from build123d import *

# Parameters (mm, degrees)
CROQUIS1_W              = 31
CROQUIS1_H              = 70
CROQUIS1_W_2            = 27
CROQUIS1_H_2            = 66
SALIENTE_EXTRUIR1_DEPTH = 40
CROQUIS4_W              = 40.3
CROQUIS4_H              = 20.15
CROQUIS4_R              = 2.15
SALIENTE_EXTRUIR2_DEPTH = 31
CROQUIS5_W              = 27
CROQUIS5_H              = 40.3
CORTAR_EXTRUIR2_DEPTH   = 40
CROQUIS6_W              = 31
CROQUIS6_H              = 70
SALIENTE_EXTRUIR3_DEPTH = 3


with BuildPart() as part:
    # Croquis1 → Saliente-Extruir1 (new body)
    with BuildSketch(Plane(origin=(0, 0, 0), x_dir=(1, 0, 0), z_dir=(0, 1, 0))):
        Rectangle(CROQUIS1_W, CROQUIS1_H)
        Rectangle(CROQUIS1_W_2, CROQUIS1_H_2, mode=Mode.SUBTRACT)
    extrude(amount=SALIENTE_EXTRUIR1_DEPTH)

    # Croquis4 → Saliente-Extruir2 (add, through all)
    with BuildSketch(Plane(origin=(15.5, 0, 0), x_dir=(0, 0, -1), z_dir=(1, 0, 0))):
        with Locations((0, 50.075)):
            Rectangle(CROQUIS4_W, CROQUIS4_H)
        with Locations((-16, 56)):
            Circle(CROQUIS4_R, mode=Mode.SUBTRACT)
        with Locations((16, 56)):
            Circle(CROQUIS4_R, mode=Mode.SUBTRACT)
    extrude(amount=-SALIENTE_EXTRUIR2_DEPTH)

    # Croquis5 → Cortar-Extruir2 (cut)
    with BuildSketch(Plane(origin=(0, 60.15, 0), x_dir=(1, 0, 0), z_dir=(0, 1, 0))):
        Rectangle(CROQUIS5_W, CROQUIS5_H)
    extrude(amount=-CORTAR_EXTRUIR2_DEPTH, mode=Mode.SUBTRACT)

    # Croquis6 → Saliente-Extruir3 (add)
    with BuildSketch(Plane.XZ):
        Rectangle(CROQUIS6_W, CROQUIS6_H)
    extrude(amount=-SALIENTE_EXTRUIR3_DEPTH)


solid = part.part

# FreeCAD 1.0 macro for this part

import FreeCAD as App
import Part
import Sketcher

doc = App.newDocument("Part")
params = doc.addObject("Spreadsheet::Sheet", "Params")
for row, (alias, value) in enumerate([
    ("sketch1_width", "31 mm"),
    ("sketch1_width2", "27 mm"),
    ("sketch1_height", "70 mm"),
    ("sketch1_height2", "66 mm"),
    ("pad1_length", "40 mm"),
    ("sketch2_diameter", "4.3 mm"),
    ("sketch2_height", "40.3 mm"),
    ("sketch2_width", "20.15 mm"),
    ("pad2_length", "31 mm"),
    ("sketch3_width", "27 mm"),
    ("sketch3_height", "40.3 mm"),
    ("pocket1_length", "40 mm"),
    ("sketch4_width", "31 mm"),
    ("sketch4_height", "70 mm"),
    ("pad3_length", "3 mm"),
], start=1):
    params.set(f"A{row}", alias)
    params.set(f"B{row}", "=" + value)
    params.setAlias(f"B{row}", alias)

body = doc.addObject("PartDesign::Body", "Body")

# Sketch on XZ plane
sketch1 = doc.addObject("Sketcher::SketchObject", "Sketch")
body.addObject(sketch1)
sketch1.AttachmentSupport = (doc.XZ_Plane, [""])
sketch1.MapMode = "FlatFace"
sketch1.addGeometry([
    Part.LineSegment(App.Vector(-16, -35, 0), App.Vector(-16, 35, 0)),  # 0
    Part.LineSegment(App.Vector(-16, 35, 0), App.Vector(16, 35, 0)),  # 1
    Part.LineSegment(App.Vector(16, 35, 0), App.Vector(16, -35, 0)),  # 2
    Part.LineSegment(App.Vector(16, -35, 0), App.Vector(-16, -35, 0)),  # 3
    Part.LineSegment(App.Vector(14, 33, 0), App.Vector(-14, 33, 0)),  # 4
    Part.LineSegment(App.Vector(-14, 33, 0), App.Vector(-14, -33, 0)),  # 5
    Part.LineSegment(App.Vector(-14, -33, 0), App.Vector(14, -33, 0)),  # 6
    Part.LineSegment(App.Vector(14, -33, 0), App.Vector(14, 33, 0)),  # 7
], False)
sketch1.addConstraint([
    Sketcher.Constraint("Coincident", 0, 2, 1, 1),
    Sketcher.Constraint("Coincident", 1, 2, 2, 1),
    Sketcher.Constraint("Coincident", 2, 2, 3, 1),
    Sketcher.Constraint("Coincident", 3, 2, 0, 1),
    Sketcher.Constraint("Coincident", 4, 2, 5, 1),
    Sketcher.Constraint("Coincident", 5, 2, 6, 1),
    Sketcher.Constraint("Coincident", 6, 2, 7, 1),
    Sketcher.Constraint("Coincident", 7, 2, 4, 1),
    Sketcher.Constraint("Vertical", 0),
    Sketcher.Constraint("Horizontal", 1),
    Sketcher.Constraint("Vertical", 2),
    Sketcher.Constraint("Horizontal", 3),
    Sketcher.Constraint("Horizontal", 4),
    Sketcher.Constraint("Vertical", 5),
    Sketcher.Constraint("Horizontal", 6),
    Sketcher.Constraint("Vertical", 7),
    Sketcher.Constraint("Symmetric", 0, 2, 2, 2, -1, 1),
    Sketcher.Constraint("Symmetric", 4, 2, 6, 2, -1, 1),
    Sketcher.Constraint("DistanceX", 1, 1, 1, 2, 31.0),
    Sketcher.Constraint("DistanceX", 4, 2, 4, 1, 27.0),
    Sketcher.Constraint("DistanceY", 0, 1, 0, 2, 70.0),
    Sketcher.Constraint("DistanceY", 5, 2, 5, 1, 66.0),
])
sketch1.setExpression("Constraints[18]", "Params.sketch1_width")
sketch1.setExpression("Constraints[19]", "Params.sketch1_width2")
sketch1.setExpression("Constraints[20]", "Params.sketch1_height")
sketch1.setExpression("Constraints[21]", "Params.sketch1_height2")
pad1 = doc.addObject("PartDesign::Pad", "Pad")
body.addObject(pad1)
pad1.Profile = sketch1
pad1.setExpression("Length", "Params.pad1_length")
pad1.Reversed = True

# Sketch on YZ plane
sketch2 = doc.addObject("Sketcher::SketchObject", "Sketch001")
body.addObject(sketch2)
sketch2.AttachmentSupport = (doc.YZ_Plane, [""])
sketch2.MapMode = "FlatFace"
sketch2.AttachmentOffset = App.Placement(App.Vector(0, 0, 15.5), App.Rotation())
sketch2.addGeometry([
    Part.LineSegment(App.Vector(60.1, 20.1, 0), App.Vector(40, 20.1, 0)),  # 0
    Part.LineSegment(App.Vector(40, 20.1, 0), App.Vector(40, -20.1, 0)),  # 1
    Part.LineSegment(App.Vector(40, -20.1, 0), App.Vector(60.1, -20.1, 0)),  # 2
    Part.LineSegment(App.Vector(60.1, -20.1, 0), App.Vector(60.1, 20.1, 0)),  # 3
    Part.Circle(App.Vector(56, 16, 0), App.Vector(0, 0, 1), 2.1),  # 4
    Part.Circle(App.Vector(56, -16, 0), App.Vector(0, 0, 1), 2.1),  # 5
], False)
sketch2.addConstraint([
    Sketcher.Constraint("Coincident", 0, 2, 1, 1),
    Sketcher.Constraint("Coincident", 1, 2, 2, 1),
    Sketcher.Constraint("Coincident", 2, 2, 3, 1),
    Sketcher.Constraint("Coincident", 3, 2, 0, 1),
    Sketcher.Constraint("Horizontal", 0),
    Sketcher.Constraint("Vertical", 1),
    Sketcher.Constraint("Horizontal", 2),
    Sketcher.Constraint("Vertical", 3),
    Sketcher.Constraint("Equal", 4, 5),
    Sketcher.Constraint("Symmetric", 4, 3, 5, 3, -1),
    Sketcher.Constraint("Diameter", 4, 4.3),
    Sketcher.Constraint("DistanceY", 1, 2, 1, 1, 40.3),
    Sketcher.Constraint("DistanceX", -1, 1, 4, 3, 56.0),
    Sketcher.Constraint("DistanceY", -1, 1, 4, 3, 16.0),
    Sketcher.Constraint("DistanceX", -1, 1, 0, 2, 40.0),
    Sketcher.Constraint("DistanceX", 0, 2, 0, 1, 20.15),
    Sketcher.Constraint("DistanceY", -1, 1, 0, 2, 20.15),
])
sketch2.setExpression("Constraints[10]", "Params.sketch2_diameter")
sketch2.setExpression("Constraints[11]", "Params.sketch2_height")
sketch2.setExpression("Constraints[15]", "Params.sketch2_width")
pad2 = doc.addObject("PartDesign::Pad", "Pad001")
body.addObject(pad2)
pad2.Profile = sketch2
pad2.setExpression("Length", "Params.pad2_length")
pad2.Reversed = True

# Sketch on XZ plane
sketch3 = doc.addObject("Sketcher::SketchObject", "Sketch002")
body.addObject(sketch3)
sketch3.AttachmentSupport = (doc.XZ_Plane, [""])
sketch3.MapMode = "FlatFace"
sketch3.AttachmentOffset = App.Placement(App.Vector(0, 0, -60.15), App.Rotation())
sketch3.addGeometry([
    Part.LineSegment(App.Vector(-14, -20, 0), App.Vector(-14, 20, 0)),
    Part.LineSegment(App.Vector(-14, 20, 0), App.Vector(14, 20, 0)),
    Part.LineSegment(App.Vector(14, 20, 0), App.Vector(14, -20, 0)),
    Part.LineSegment(App.Vector(14, -20, 0), App.Vector(-14, -20, 0)),
], False)
sketch3.addConstraint([
    Sketcher.Constraint("Coincident", 0, 2, 1, 1),
    Sketcher.Constraint("Coincident", 1, 2, 2, 1),
    Sketcher.Constraint("Coincident", 2, 2, 3, 1),
    Sketcher.Constraint("Coincident", 3, 2, 0, 1),
    Sketcher.Constraint("Vertical", 0),
    Sketcher.Constraint("Horizontal", 1),
    Sketcher.Constraint("Vertical", 2),
    Sketcher.Constraint("Horizontal", 3),
    Sketcher.Constraint("Symmetric", 0, 2, 2, 2, -1, 1),
    Sketcher.Constraint("DistanceX", 1, 1, 1, 2, 27.0),
    Sketcher.Constraint("DistanceY", 0, 1, 0, 2, 40.3),
])
sketch3.setExpression("Constraints[9]", "Params.sketch3_width")
sketch3.setExpression("Constraints[10]", "Params.sketch3_height")
pocket1 = doc.addObject("PartDesign::Pocket", "Pocket")
body.addObject(pocket1)
pocket1.Profile = sketch3
pocket1.setExpression("Length", "Params.pocket1_length")
pocket1.Reversed = True

# Sketch on XZ plane
sketch4 = doc.addObject("Sketcher::SketchObject", "Sketch003")
body.addObject(sketch4)
sketch4.AttachmentSupport = (doc.XZ_Plane, [""])
sketch4.MapMode = "FlatFace"
sketch4.addGeometry([
    Part.LineSegment(App.Vector(-16, 35, 0), App.Vector(-16, -35, 0)),
    Part.LineSegment(App.Vector(-16, -35, 0), App.Vector(16, -35, 0)),
    Part.LineSegment(App.Vector(16, -35, 0), App.Vector(16, 35, 0)),
    Part.LineSegment(App.Vector(16, 35, 0), App.Vector(-16, 35, 0)),
], False)
sketch4.addConstraint([
    Sketcher.Constraint("Coincident", 0, 2, 1, 1),
    Sketcher.Constraint("Coincident", 1, 2, 2, 1),
    Sketcher.Constraint("Coincident", 2, 2, 3, 1),
    Sketcher.Constraint("Coincident", 3, 2, 0, 1),
    Sketcher.Constraint("Vertical", 0),
    Sketcher.Constraint("Horizontal", 1),
    Sketcher.Constraint("Vertical", 2),
    Sketcher.Constraint("Horizontal", 3),
    Sketcher.Constraint("Symmetric", 0, 2, 2, 2, -1, 1),
    Sketcher.Constraint("DistanceX", 1, 1, 1, 2, 31.0),
    Sketcher.Constraint("DistanceY", 0, 2, 0, 1, 70.0),
])
sketch4.setExpression("Constraints[9]", "Params.sketch4_width")
sketch4.setExpression("Constraints[10]", "Params.sketch4_height")
pad3 = doc.addObject("PartDesign::Pad", "Pad002")
body.addObject(pad3)
pad3.Profile = sketch4
pad3.setExpression("Length", "Params.pad3_length")
pad3.Reversed = True

doc.recompute()
